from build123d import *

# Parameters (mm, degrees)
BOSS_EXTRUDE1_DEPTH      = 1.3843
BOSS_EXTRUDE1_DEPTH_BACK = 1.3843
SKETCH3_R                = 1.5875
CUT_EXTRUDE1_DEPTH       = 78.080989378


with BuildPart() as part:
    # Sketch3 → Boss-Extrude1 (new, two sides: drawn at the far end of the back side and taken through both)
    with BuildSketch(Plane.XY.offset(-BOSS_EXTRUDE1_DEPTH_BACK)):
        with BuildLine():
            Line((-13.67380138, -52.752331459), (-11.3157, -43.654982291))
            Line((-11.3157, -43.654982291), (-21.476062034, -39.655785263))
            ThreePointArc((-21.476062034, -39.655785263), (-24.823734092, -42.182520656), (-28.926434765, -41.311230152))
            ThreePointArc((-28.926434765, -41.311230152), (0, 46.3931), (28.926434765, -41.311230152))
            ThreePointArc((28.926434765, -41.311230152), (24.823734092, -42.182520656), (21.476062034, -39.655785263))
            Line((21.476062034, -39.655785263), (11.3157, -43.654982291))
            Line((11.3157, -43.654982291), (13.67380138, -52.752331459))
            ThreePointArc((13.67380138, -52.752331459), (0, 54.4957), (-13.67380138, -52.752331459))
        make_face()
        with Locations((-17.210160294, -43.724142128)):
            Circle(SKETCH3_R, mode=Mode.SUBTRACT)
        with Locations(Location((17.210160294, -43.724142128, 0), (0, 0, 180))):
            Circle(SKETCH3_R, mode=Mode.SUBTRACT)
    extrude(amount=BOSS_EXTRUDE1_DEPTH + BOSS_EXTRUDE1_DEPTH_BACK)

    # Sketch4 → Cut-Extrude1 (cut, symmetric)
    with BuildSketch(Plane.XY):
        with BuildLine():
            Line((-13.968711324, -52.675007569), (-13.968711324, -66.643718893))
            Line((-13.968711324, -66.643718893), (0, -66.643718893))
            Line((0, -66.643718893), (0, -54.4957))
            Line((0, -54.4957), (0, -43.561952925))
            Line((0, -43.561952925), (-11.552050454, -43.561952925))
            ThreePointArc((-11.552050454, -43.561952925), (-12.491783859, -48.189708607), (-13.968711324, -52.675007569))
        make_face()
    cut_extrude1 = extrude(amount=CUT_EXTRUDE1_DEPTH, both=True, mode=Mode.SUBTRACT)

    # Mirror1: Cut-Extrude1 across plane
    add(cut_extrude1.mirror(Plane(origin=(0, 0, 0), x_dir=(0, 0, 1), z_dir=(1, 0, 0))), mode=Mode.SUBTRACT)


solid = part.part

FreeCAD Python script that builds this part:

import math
import FreeCAD as App
import Part
import Sketcher

V = App.Vector
Q = App.Units.Quantity

doc = App.newDocument("Part")
params = doc.addObject("Spreadsheet::Sheet", "Params")
for row, (alias, value) in enumerate([
    ("sketch1_diameter", "0.125 in"),
    ("sketch1_diameter2", "0.125 in"),
    ("sketch1_length", "0.37 in"),
    ("sketch1_length2", "0.37 in"),
    ("pad1_length", "0.0545 in"),
    ("pad1_length2", "0.0545 in"),
    ("pocket1_length", "156.161979 mm"),
], start=1):
    params.set(f"A{row}", alias)
    params.set(f"B{row}", "=" + value)
    params.setAlias(f"B{row}", alias)

body = doc.addObject("PartDesign::Body", "Body")

sketch1 = body.newObject("Sketcher::SketchObject", "Sketch")
sketch1.AttachmentSupport = (doc.getObject("XY_Plane"), [""])
sketch1.MapMode = "FlatFace"
sketch1.addGeometry(Part.LineSegment(V(-13.673801, -52.752331, 0), V(-11.3157, -43.654982, 0)), False)
sketch1.addGeometry(Part.LineSegment(V(-11.3157, -43.654982, 0), V(-21.476062, -39.655785, 0)), False)
sketch1.addGeometry(Part.ArcOfCircle(Part.Circle(V(-25.919906, -37.249168, 0), V(0, 0, 1), 5.053668), math.radians(-126.506934), math.radians(-28.438287)), False)
sketch1.addGeometry(Part.ArcOfCircle(Part.Circle(V(0, -2.229289, 0), V(0, 0, 1), 48.622389), math.radians(-53.493066), math.radians(233.493066)), False)
sketch1.addGeometry(Part.ArcOfCircle(Part.Circle(V(25.919906, -37.249168, 0), V(0, 0, 1), 5.053668), math.radians(-151.561713), math.radians(-53.493066)), False)
sketch1.addGeometry(Part.LineSegment(V(21.476062, -39.655785, 0), V(11.3157, -43.654982, 0)), False)
sketch1.addGeometry(Part.LineSegment(V(11.3157, -43.654982, 0), V(13.673801, -52.752331, 0)), False)
sketch1.addGeometry(Part.ArcOfCircle(Part.Circle(V(0, 0, 0), V(0, 0, 1), 54.4957), math.radians(-75.468322), math.radians(255.468322)), False)
sketch1.addGeometry(Part.Circle(V(-17.21016, -43.724142, 0), V(0, 0, 1), 1.5875), False)
sketch1.addGeometry(Part.Circle(V(17.21016, -43.724142, 0), V(0, 0, 1), 1.5875), False)
sketch1.addConstraint(Sketcher.Constraint("Coincident", 0, 2, 1, 1))
sketch1.addConstraint(Sketcher.Constraint("Coincident", 1, 2, 2, 2))
sketch1.addConstraint(Sketcher.Constraint("Coincident", 2, 1, 3, 2))
sketch1.addConstraint(Sketcher.Constraint("Coincident", 3, 1, 4, 2))
sketch1.addConstraint(Sketcher.Constraint("Coincident", 4, 1, 5, 1))
sketch1.addConstraint(Sketcher.Constraint("Coincident", 5, 2, 6, 1))
sketch1.addConstraint(Sketcher.Constraint("Coincident", 6, 2, 7, 1))
sketch1.addConstraint(Sketcher.Constraint("Coincident", 7, 2, 0, 1))
sketch1.addConstraint(Sketcher.Constraint("Coincident", 7, 3, -1, 1))
sketch1.addConstraint(Sketcher.Constraint("PointOnObject", 3, 3, -2))
sketch1.addConstraint(Sketcher.Constraint("Diameter", 8, Q("0.125 in")))
sketch1.addConstraint(Sketcher.Constraint("Diameter", 9, Q("0.125 in")))
sketch1.addConstraint(Sketcher.Constraint("Radius", 7, Q("2.1455 in")))
sketch1.addConstraint(Sketcher.Constraint("Distance", 0, Q("0.37 in")))
sketch1.addConstraint(Sketcher.Constraint("Distance", 6, Q("0.37 in")))
sketch1.addConstraint(Sketcher.Constraint("Radius", 3, 48.622389))
sketch1.addConstraint(Sketcher.Constraint("DistanceX", 0, 2, 5, 2, Q("0.891 in")))
sketch1.addConstraint(Sketcher.Constraint("DistanceX", 0, 2, -1, 1, Q("0.4455 in")))
sketch1.addConstraint(Sketcher.Constraint("Radius", 2, 5.053668))
sketch1.addConstraint(Sketcher.Constraint("Radius", 4, 5.053668))
sketch1.addConstraint(Sketcher.Constraint("DistanceX", -1, 1, 6, 2, 13.673801))
sketch1.addConstraint(Sketcher.Constraint("DistanceX", 7, 2, -1, 1, 13.673801))
sketch1.addConstraint(Sketcher.Constraint("DistanceX", 1, 2, 8, 3, 4.265902))
sketch1.addConstraint(Sketcher.Constraint("DistanceX", 9, 3, 4, 1, 4.265902))
sketch1.addConstraint(Sketcher.Constraint("DistanceY", 6, 2, 3, 1, 11.441101))
sketch1.addConstraint(Sketcher.Constraint("DistanceY", 7, 2, 2, 1, 11.441101))
sketch1.addConstraint(Sketcher.Constraint("Distance", 1, 10.91909))
sketch1.addConstraint(Sketcher.Constraint("Distance", 5, 10.91909))
sketch1.addConstraint(Sketcher.Constraint("DistanceY", 2, 3, -1, 1, 37.249168))
sketch1.addConstraint(Sketcher.Constraint("DistanceY", 3, 3, -1, 1, 2.229289))
sketch1.addConstraint(Sketcher.Constraint("DistanceY", 4, 3, -1, 1, 37.249168))
sketch1.addConstraint(Sketcher.Constraint("DistanceY", 8, 3, 0, 2, 0.06916))
sketch1.addConstraint(Sketcher.Constraint("DistanceY", 9, 3, 0, 2, 0.06916))
sketch1.setExpression("Constraints[10]", "Params.sketch1_diameter")
sketch1.setExpression("Constraints[11]", "Params.sketch1_diameter2")
sketch1.setExpression("Constraints[13]", "Params.sketch1_length")
sketch1.setExpression("Constraints[14]", "Params.sketch1_length2")
pad1 = body.newObject("PartDesign::Pad", "Pad")
pad1.Profile = sketch1
pad1.Type = "TwoLengths"
pad1.setExpression("Length", "Params.pad1_length")
pad1.setExpression("Length2", "Params.pad1_length2")

sketch2 = body.newObject("Sketcher::SketchObject", "Sketch001")
sketch2.AttachmentSupport = (doc.getObject("XY_Plane"), [""])
sketch2.MapMode = "FlatFace"
sketch2.addGeometry(Part.LineSegment(V(-14, -53, 0), V(-14, -67, 0)), False)
sketch2.addGeometry(Part.LineSegment(V(-14, -67, 0), V(0, -67, 0)), False)
sketch2.addGeometry(Part.LineSegment(V(0, -67, 0), V(0, -44, 0)), False)
sketch2.addGeometry(Part.LineSegment(V(0, -44, 0), V(-12, -44, 0)), False)
sketch2.addGeometry(Part.ArcOfCircle(Part.Circle(V(-51, -38, 0), V(0, 0, 1), 40), math.radians(-21.6), math.radians(-8.11)), False)
sketch2.addConstraint(Sketcher.Constraint("Coincident", 0, 2, 1, 1))
sketch2.addConstraint(Sketcher.Constraint("Coincident", 1, 2, 2, 1))
sketch2.addConstraint(Sketcher.Constraint("Coincident", 2, 2, 3, 1))
sketch2.addConstraint(Sketcher.Constraint("Coincident", 3, 2, 4, 2))
sketch2.addConstraint(Sketcher.Constraint("Coincident", 4, 1, 0, 1))
sketch2.addConstraint(Sketcher.Constraint("Vertical", 0))
sketch2.addConstraint(Sketcher.Constraint("Horizontal", 1))
sketch2.addConstraint(Sketcher.Constraint("Vertical", 2))
sketch2.addConstraint(Sketcher.Constraint("Horizontal", 3))
sketch2.addConstraint(Sketcher.Constraint("PointOnObject", 1, 2, -2))
sketch2.addConstraint(Sketcher.Constraint("Equal", 1, 0))
sketch2.addConstraint(Sketcher.Constraint("Radius", 4, 40.12369))
sketch2.addConstraint(Sketcher.Constraint("DistanceX", 1, 1, 1, 2, 13.968711))
sketch2.addConstraint(Sketcher.Constraint("DistanceX", 3, 2, 3, 1, 11.55205))
sketch2.addConstraint(Sketcher.Constraint("DistanceY", 2, 1, 2, 2, 23.081766))
sketch2.addConstraint(Sketcher.Constraint("DistanceY", 4, 3, -1, 1, 37.904929))
pocket1 = body.newObject("PartDesign::Pocket", "Pocket")
pocket1.Profile = sketch2
pocket1.setExpression("Length", "Params.pocket1_length")
pocket1.Midplane = True
doc.recompute()

mirrored = body.newObject("PartDesign::Mirrored", "Mirrored")
mirrored.Originals = [pocket1]
mirrored.MirrorPlane = (doc.getObject("YZ_Plane"), [""])
body.Tip = mirrored

doc.recompute()
